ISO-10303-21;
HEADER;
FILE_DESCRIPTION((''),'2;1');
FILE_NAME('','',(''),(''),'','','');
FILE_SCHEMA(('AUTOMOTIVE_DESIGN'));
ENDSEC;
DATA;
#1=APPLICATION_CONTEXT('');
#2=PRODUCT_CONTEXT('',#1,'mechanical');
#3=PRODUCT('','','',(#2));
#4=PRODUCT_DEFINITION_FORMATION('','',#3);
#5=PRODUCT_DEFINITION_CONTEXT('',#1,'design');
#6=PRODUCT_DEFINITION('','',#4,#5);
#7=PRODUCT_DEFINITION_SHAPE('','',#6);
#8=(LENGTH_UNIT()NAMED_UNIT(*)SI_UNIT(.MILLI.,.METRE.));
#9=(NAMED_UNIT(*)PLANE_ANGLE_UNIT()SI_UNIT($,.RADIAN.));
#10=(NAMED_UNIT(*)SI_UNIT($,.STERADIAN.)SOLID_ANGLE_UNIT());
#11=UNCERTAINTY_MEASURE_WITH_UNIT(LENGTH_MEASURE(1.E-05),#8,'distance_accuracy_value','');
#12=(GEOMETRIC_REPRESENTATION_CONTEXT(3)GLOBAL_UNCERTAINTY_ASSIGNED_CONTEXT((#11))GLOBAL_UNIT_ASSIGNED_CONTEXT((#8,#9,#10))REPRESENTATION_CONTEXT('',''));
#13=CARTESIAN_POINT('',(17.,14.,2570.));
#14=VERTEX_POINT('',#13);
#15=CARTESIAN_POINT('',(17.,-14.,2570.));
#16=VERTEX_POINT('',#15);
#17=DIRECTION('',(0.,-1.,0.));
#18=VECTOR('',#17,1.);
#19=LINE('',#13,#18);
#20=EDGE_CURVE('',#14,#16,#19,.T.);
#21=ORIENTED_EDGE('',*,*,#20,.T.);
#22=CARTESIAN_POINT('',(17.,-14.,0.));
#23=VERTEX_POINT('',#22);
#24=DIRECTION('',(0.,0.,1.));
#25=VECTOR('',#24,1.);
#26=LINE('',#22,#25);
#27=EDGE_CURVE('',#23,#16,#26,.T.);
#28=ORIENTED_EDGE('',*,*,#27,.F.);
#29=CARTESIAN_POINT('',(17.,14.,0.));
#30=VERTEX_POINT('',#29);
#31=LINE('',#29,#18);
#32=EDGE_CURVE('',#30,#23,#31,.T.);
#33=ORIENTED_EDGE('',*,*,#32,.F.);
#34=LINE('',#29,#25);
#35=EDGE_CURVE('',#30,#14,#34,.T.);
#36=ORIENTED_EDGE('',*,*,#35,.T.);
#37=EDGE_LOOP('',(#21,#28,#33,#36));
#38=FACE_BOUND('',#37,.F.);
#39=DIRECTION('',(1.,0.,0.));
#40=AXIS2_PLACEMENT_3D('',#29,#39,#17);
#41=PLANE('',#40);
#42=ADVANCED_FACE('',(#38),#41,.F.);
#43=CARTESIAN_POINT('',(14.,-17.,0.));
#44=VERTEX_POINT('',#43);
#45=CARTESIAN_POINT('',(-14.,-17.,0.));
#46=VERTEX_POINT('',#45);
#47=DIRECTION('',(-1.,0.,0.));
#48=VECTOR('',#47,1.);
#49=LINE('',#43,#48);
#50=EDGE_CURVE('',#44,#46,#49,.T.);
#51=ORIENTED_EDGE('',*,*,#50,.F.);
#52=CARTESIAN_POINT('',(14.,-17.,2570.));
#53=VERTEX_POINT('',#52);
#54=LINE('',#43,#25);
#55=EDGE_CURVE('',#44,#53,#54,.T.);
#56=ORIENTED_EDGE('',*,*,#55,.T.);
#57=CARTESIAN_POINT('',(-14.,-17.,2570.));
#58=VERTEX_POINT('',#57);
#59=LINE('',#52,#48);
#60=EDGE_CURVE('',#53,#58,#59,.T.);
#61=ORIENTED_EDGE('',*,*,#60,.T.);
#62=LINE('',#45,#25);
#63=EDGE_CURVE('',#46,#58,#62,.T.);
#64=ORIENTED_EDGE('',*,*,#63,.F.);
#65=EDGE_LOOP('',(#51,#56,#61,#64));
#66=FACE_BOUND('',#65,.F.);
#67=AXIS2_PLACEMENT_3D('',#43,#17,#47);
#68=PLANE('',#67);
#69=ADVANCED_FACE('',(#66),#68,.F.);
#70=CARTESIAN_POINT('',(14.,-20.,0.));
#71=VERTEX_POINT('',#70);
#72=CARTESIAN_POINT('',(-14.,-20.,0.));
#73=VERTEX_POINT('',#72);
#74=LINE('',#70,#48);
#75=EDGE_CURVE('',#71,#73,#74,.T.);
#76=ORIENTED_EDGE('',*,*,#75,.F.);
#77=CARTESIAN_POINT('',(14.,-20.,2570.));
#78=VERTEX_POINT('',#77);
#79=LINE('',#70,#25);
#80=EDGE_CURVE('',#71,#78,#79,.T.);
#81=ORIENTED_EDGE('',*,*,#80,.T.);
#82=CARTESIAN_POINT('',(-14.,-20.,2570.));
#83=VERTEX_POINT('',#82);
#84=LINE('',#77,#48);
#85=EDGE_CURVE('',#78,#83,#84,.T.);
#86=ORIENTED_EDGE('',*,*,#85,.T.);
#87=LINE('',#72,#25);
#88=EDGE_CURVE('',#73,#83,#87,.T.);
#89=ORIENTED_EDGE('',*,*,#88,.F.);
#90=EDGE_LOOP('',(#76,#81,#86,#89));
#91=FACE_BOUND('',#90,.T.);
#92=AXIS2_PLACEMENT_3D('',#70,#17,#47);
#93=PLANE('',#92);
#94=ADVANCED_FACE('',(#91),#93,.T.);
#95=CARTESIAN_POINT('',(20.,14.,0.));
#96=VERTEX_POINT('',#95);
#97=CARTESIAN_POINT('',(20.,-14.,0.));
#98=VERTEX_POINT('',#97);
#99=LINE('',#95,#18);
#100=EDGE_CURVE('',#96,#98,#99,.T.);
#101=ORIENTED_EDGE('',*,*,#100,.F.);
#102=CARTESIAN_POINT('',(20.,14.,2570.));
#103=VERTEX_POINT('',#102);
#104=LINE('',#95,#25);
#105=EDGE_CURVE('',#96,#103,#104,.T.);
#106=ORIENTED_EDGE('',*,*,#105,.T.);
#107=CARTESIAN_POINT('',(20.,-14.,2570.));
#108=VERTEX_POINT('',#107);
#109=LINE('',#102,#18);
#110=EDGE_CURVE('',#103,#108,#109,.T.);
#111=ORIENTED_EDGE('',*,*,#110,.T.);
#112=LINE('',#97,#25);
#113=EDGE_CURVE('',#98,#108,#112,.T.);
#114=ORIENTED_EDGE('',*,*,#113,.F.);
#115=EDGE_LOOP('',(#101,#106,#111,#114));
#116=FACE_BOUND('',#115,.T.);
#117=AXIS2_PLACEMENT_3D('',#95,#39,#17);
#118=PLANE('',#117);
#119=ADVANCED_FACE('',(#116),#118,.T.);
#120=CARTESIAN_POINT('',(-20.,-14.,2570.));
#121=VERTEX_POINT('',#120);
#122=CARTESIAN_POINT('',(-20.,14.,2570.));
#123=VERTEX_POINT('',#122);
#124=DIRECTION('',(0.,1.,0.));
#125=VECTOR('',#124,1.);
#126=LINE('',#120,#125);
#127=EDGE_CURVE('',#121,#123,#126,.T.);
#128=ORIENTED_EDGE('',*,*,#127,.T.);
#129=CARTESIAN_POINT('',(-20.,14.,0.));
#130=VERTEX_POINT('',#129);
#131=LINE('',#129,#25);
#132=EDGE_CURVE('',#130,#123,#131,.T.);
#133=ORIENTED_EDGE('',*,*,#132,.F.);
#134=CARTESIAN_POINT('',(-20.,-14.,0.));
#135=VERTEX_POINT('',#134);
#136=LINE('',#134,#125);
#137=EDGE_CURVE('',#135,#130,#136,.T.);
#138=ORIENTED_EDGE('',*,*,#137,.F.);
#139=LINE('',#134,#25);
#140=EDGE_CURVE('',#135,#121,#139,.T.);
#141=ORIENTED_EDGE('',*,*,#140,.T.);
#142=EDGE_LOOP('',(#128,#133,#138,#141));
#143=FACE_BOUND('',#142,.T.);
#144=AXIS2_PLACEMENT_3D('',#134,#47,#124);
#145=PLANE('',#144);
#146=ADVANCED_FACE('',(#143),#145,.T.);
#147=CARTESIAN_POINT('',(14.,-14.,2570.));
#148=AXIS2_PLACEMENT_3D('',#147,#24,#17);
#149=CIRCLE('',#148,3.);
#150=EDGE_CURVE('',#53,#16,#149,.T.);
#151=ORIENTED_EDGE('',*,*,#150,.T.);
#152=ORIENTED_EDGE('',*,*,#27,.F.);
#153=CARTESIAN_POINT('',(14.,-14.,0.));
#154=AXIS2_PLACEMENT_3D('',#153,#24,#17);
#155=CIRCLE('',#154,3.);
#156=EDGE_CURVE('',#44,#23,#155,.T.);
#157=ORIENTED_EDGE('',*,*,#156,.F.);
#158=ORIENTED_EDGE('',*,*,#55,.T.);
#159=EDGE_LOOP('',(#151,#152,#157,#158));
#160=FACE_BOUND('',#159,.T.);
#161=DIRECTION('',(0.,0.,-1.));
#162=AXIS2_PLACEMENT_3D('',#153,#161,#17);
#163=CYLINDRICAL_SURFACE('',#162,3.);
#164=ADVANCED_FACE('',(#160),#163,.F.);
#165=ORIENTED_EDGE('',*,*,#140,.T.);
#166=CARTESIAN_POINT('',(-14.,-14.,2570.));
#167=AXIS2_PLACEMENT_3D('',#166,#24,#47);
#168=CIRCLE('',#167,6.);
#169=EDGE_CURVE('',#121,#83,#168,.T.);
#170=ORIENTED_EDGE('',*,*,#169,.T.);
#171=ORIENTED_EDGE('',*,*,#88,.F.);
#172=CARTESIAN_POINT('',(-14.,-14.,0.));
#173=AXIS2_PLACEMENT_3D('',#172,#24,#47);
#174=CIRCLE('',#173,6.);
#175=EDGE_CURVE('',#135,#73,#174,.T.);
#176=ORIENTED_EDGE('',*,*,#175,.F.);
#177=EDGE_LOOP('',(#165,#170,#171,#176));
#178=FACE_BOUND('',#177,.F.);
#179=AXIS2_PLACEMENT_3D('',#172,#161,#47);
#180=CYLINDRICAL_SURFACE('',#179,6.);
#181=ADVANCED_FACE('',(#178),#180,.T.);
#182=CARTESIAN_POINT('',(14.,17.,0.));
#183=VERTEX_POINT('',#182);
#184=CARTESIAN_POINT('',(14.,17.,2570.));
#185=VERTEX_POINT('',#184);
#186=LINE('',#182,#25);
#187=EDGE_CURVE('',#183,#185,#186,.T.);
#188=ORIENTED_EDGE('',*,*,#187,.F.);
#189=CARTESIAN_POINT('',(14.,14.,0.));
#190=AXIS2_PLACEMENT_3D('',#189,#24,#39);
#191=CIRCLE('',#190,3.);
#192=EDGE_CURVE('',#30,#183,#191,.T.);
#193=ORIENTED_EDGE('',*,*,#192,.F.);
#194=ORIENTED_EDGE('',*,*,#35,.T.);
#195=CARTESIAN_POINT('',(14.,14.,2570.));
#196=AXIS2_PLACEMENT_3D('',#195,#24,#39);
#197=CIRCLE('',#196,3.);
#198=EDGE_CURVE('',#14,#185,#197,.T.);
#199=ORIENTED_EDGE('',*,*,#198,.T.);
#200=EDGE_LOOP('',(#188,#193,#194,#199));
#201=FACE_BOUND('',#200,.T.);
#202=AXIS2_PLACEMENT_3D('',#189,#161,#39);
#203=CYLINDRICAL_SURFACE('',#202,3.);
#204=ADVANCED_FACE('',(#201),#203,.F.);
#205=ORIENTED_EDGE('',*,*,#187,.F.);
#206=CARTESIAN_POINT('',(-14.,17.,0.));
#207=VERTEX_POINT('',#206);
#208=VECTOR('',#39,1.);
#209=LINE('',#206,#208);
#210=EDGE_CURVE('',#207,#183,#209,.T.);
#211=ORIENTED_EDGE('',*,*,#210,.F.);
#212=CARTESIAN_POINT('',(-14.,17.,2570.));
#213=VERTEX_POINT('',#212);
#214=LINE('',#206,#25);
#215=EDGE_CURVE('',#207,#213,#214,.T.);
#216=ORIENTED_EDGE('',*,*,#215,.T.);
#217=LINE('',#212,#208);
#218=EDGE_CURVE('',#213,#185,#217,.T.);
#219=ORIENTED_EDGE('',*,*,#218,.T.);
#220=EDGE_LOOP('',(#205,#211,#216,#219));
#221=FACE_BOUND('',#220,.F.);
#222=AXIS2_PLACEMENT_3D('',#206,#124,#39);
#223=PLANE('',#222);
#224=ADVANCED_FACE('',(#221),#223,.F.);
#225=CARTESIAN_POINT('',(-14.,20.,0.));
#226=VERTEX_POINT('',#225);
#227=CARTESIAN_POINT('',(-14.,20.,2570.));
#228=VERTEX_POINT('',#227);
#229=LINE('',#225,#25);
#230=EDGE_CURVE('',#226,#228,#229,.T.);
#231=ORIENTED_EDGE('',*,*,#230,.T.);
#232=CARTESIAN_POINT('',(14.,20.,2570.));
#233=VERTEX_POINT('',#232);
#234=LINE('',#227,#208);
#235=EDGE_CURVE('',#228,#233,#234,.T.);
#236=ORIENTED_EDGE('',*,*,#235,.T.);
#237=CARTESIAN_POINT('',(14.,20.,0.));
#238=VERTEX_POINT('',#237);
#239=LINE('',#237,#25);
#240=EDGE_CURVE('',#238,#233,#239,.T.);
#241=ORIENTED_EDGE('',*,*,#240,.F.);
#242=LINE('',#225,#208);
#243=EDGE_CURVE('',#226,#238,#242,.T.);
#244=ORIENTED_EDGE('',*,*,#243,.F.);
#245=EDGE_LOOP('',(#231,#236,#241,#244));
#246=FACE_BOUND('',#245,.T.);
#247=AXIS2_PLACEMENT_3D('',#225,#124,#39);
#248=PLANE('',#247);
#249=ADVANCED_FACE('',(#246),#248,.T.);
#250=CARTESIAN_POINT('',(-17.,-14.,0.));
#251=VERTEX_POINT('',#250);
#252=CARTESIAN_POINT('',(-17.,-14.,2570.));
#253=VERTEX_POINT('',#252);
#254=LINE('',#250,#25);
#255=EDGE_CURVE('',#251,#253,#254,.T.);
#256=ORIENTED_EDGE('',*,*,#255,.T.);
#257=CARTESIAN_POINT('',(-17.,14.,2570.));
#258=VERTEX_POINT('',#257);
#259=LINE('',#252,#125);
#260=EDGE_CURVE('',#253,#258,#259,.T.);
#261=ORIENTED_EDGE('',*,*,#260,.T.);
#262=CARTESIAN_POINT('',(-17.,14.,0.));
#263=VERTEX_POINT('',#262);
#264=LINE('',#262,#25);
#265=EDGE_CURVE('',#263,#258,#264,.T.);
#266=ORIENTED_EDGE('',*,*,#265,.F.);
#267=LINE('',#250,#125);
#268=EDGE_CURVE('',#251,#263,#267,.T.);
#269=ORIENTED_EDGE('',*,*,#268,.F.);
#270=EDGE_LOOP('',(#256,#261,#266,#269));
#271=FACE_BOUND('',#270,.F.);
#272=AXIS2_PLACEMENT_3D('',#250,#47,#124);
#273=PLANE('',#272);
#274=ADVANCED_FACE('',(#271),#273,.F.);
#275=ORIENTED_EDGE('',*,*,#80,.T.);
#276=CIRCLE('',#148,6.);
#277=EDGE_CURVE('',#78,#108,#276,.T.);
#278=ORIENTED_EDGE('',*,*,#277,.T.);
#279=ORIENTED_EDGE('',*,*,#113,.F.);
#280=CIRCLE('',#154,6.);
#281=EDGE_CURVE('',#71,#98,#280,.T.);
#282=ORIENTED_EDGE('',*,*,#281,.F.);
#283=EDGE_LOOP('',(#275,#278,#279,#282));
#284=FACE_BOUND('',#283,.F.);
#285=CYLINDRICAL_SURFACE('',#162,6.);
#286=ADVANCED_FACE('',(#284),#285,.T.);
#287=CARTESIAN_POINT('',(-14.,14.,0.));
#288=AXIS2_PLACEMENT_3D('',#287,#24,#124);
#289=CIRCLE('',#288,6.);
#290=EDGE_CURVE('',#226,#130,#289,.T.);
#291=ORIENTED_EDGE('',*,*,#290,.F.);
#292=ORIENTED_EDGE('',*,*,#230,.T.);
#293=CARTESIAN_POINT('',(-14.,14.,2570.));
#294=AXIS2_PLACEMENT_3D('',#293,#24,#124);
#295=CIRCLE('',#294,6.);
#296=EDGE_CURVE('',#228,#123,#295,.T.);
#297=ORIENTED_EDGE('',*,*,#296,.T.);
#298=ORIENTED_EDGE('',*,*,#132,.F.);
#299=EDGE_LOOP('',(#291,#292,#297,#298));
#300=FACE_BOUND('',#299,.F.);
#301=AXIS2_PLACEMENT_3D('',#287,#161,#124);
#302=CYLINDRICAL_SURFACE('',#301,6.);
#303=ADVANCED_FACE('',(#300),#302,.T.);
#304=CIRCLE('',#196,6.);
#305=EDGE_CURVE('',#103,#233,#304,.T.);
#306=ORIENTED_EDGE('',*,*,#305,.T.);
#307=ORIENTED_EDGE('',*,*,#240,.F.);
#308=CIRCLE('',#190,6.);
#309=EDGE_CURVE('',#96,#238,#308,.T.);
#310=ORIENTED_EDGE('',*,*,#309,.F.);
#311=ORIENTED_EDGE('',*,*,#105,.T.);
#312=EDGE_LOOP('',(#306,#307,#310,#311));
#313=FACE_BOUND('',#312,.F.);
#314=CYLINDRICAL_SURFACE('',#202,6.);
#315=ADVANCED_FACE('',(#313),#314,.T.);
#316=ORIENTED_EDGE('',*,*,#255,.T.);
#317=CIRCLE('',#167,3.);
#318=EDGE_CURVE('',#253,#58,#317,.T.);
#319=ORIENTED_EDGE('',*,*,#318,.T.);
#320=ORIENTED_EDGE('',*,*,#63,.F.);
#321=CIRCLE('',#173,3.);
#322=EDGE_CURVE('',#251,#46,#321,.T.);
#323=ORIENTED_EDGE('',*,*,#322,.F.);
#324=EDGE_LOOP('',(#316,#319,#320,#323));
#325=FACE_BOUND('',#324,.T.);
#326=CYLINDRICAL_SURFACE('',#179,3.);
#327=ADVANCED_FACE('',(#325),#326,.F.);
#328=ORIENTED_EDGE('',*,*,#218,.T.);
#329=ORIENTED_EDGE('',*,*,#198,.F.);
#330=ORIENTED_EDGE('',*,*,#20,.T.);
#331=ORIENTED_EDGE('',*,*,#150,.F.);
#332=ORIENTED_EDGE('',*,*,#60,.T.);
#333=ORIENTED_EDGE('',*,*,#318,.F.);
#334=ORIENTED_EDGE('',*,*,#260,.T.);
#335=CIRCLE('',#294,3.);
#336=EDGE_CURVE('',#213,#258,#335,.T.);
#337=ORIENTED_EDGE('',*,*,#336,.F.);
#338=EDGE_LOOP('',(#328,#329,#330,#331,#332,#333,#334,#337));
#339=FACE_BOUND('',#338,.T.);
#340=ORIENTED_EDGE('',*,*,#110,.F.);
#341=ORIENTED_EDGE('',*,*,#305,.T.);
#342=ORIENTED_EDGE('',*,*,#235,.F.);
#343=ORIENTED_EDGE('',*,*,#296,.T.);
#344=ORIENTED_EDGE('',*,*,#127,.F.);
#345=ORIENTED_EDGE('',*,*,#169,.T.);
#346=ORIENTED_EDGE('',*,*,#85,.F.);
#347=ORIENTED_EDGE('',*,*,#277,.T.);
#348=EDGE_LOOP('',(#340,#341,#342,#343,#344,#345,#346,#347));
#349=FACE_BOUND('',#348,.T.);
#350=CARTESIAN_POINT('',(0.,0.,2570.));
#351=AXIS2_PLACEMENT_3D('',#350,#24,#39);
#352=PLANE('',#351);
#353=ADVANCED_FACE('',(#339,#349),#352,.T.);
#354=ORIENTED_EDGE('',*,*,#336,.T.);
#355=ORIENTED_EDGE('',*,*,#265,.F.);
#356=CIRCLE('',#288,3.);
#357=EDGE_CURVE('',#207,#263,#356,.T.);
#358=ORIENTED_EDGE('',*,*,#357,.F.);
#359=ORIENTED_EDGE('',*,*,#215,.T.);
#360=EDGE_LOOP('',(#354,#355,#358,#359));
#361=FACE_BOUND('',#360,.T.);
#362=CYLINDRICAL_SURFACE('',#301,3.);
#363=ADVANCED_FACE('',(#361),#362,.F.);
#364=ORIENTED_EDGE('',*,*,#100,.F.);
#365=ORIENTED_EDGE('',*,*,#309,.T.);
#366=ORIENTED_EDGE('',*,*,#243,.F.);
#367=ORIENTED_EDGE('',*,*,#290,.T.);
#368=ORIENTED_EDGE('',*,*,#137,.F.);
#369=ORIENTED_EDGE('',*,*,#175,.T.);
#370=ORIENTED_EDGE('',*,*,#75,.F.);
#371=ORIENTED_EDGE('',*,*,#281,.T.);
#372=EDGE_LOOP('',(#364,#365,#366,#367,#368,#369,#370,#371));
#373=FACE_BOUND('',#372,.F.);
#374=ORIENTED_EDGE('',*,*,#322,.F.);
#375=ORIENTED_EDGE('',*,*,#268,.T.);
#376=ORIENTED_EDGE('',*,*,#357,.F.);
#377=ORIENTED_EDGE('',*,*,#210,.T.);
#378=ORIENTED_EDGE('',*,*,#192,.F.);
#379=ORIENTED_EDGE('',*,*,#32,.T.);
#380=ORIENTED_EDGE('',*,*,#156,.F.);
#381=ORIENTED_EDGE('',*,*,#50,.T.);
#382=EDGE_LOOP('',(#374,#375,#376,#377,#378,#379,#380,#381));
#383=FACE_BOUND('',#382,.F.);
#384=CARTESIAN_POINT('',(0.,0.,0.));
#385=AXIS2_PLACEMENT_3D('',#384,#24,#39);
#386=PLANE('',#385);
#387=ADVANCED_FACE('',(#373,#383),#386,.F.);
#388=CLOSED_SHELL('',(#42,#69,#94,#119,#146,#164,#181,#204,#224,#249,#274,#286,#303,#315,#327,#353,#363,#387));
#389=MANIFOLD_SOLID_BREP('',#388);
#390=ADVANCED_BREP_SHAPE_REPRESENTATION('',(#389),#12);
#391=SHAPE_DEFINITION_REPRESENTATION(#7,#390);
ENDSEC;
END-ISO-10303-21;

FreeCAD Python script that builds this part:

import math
import FreeCAD as App
import Part
import Sketcher
from FreeCAD import Vector

doc = App.newDocument("Part")
body = doc.addObject("PartDesign::Body", "Body")

sketch1 = body.newObject("Sketcher::SketchObject", "Sketch")
sketch1.AttachmentSupport = (doc.getObject("XY_Plane"), [""])
sketch1.MapMode = "FlatFace"
sketch1.addGeometry([
    Part.LineSegment(Vector(-20, 14, 0), Vector(-20, -14, 0)),
    Part.ArcOfCircle(Part.Circle(Vector(-14, -14, 0), Vector(0, 0, 1), 6), math.radians(180), math.radians(270)),
    Part.LineSegment(Vector(-14, -20, 0), Vector(14, -20, 0)),
    Part.ArcOfCircle(Part.Circle(Vector(14, -14, 0), Vector(0, 0, 1), 6), math.radians(-90), math.radians(0)),
    Part.LineSegment(Vector(20, -14, 0), Vector(20, 14, 0)),
    Part.ArcOfCircle(Part.Circle(Vector(14, 14, 0), Vector(0, 0, 1), 6), math.radians(0), math.radians(90)),
    Part.LineSegment(Vector(14, 20, 0), Vector(-14, 20, 0)),
    Part.ArcOfCircle(Part.Circle(Vector(-14, 14, 0), Vector(0, 0, 1), 6), math.radians(90), math.radians(180)),
    Part.ArcOfCircle(Part.Circle(Vector(-14, 14, 0), Vector(0, 0, 1), 3), math.radians(90), math.radians(180)),
    Part.LineSegment(Vector(-14, 17, 0), Vector(14, 17, 0)),
    Part.ArcOfCircle(Part.Circle(Vector(14, 14, 0), Vector(0, 0, 1), 3), math.radians(0), math.radians(90)),
    Part.LineSegment(Vector(17, 14, 0), Vector(17, -14, 0)),
    Part.ArcOfCircle(Part.Circle(Vector(14, -14, 0), Vector(0, 0, 1), 3), math.radians(-90), math.radians(0)),
    Part.LineSegment(Vector(14, -17, 0), Vector(-14, -17, 0)),
    Part.ArcOfCircle(Part.Circle(Vector(-14, -14, 0), Vector(0, 0, 1), 3), math.radians(180), math.radians(270)),
    Part.LineSegment(Vector(-17, -14, 0), Vector(-17, 14, 0)),
], False)
sketch1.addConstraint([
    Sketcher.Constraint("Tangent", 0, 2, 1, 1),
    Sketcher.Constraint("Tangent", 1, 2, 2, 1),
    Sketcher.Constraint("Tangent", 2, 2, 3, 1),
    Sketcher.Constraint("Tangent", 3, 2, 4, 1),
    Sketcher.Constraint("Tangent", 4, 2, 5, 1),
    Sketcher.Constraint("Tangent", 5, 2, 6, 1),
    Sketcher.Constraint("Tangent", 6, 2, 7, 1),
    Sketcher.Constraint("Tangent", 7, 2, 0, 1),
    Sketcher.Constraint("Tangent", 8, 1, 9, 1),
    Sketcher.Constraint("Tangent", 9, 2, 10, 2),
    Sketcher.Constraint("Tangent", 10, 1, 11, 1),
    Sketcher.Constraint("Tangent", 11, 2, 12, 2),
    Sketcher.Constraint("Tangent", 12, 1, 13, 1),
    Sketcher.Constraint("Tangent", 13, 2, 14, 2),
    Sketcher.Constraint("Tangent", 14, 1, 15, 1),
    Sketcher.Constraint("Tangent", 15, 2, 8, 2),
    Sketcher.Constraint("Vertical", 0),
    Sketcher.Constraint("Horizontal", 2),
    Sketcher.Constraint("Vertical", 4),
    Sketcher.Constraint("Horizontal", 6),
    Sketcher.Constraint("Horizontal", 9),
    Sketcher.Constraint("Vertical", 11),
    Sketcher.Constraint("Horizontal", 13),
    Sketcher.Constraint("Vertical", 15),
    Sketcher.Constraint("Coincident", 8, 3, 7, 3),
    Sketcher.Constraint("Coincident", 10, 3, 5, 3),
    Sketcher.Constraint("Coincident", 12, 3, 3, 3),
    Sketcher.Constraint("Equal", 1, 3),
    Sketcher.Constraint("Equal", 3, 5),
    Sketcher.Constraint("Equal", 5, 7),
    Sketcher.Constraint("Equal", 12, 14),
    Sketcher.Constraint("Symmetric", 1, 3, 5, 3, -1, 1),
    Sketcher.Constraint("Equal", 13, 0),
    Sketcher.Constraint("Radius", 1, 6.0),
    Sketcher.Constraint("Radius", 8, 3.0),
    Sketcher.Constraint("DistanceX", 0, 2, -1, 1, 20.0),
])
pad1 = body.newObject("PartDesign::Pad", "Pad")
pad1.Profile = sketch1
pad1.Length = 2570

doc.recompute()
